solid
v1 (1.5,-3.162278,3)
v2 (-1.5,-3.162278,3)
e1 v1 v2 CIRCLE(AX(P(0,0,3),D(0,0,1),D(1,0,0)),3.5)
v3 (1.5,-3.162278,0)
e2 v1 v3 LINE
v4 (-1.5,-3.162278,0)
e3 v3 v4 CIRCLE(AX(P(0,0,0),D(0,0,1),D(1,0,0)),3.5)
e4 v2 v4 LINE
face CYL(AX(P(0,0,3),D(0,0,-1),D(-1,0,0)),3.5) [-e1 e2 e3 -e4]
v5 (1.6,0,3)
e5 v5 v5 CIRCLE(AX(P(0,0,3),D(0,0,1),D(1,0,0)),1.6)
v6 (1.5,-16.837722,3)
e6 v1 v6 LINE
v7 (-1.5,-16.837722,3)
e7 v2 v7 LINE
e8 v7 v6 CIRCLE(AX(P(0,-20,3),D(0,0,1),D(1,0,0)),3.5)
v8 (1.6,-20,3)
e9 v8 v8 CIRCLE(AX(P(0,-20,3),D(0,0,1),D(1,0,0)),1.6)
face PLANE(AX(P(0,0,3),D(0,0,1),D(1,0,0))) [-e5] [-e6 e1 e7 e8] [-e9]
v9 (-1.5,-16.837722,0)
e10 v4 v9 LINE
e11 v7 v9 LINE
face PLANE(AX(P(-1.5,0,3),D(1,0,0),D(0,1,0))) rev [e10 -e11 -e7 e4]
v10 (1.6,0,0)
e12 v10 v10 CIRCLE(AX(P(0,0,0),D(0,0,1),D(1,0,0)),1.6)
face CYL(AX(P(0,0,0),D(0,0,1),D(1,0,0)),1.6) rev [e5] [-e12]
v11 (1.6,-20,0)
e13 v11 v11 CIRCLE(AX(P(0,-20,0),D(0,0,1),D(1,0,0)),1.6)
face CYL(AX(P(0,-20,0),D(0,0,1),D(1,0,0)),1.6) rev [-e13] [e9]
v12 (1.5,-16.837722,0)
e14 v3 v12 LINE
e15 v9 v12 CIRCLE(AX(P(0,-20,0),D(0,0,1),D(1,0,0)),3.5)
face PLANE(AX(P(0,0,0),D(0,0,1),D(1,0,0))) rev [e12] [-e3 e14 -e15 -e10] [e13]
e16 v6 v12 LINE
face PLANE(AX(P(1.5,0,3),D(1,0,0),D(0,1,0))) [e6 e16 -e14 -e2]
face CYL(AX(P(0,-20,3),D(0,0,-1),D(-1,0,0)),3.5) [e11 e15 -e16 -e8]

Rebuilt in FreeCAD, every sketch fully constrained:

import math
import FreeCAD as App
import Part
import Sketcher

V = App.Vector

doc = App.newDocument("Part")
body = doc.addObject("PartDesign::Body", "Body")

# Sketch on XY plane
sketch1 = doc.addObject("Sketcher::SketchObject", "Sketch")
body.addObject(sketch1)
sketch1.AttachmentSupport = (doc.XY_Plane, [""])
sketch1.MapMode = "FlatFace"
sketch1.addGeometry([
    Part.LineSegment(V(-1.5, -3.162278, 0), V(-1.5, -16.837722, 0)),  # 0
    Part.ArcOfCircle(Part.Circle(V(0, -20, 0), V(0, 0, 1), 3.5), math.radians(115.376934), math.radians(360)),  # 1
    Part.ArcOfCircle(Part.Circle(V(0, -20, 0), V(0, 0, 1), 3.5), math.radians(0), math.radians(64.623066)),  # 2
    Part.LineSegment(V(1.5, -16.837722, 0), V(1.5, -3.162278, 0)),  # 3
    Part.ArcOfCircle(Part.Circle(V(0, 0, 0), V(0, 0, 1), 3.5), math.radians(-64.623066), math.radians(0)),  # 4
    Part.ArcOfCircle(Part.Circle(V(0, 0, 0), V(0, 0, 1), 3.5), math.radians(0), math.radians(244.623066)),  # 5
], False)
sketch1.addConstraint([
    Sketcher.Constraint("Coincident", 0, 2, 1, 1),
    Sketcher.Constraint("Tangent", 1, 2, 2, 1),
    Sketcher.Constraint("Coincident", 2, 2, 3, 1),
    Sketcher.Constraint("Coincident", 3, 2, 4, 1),
    Sketcher.Constraint("Tangent", 4, 2, 5, 1),
    Sketcher.Constraint("Coincident", 5, 2, 0, 1),
    Sketcher.Constraint("Vertical", 0),
    Sketcher.Constraint("Vertical", 3),
    Sketcher.Constraint("Coincident", 4, 3, -1, 1),
    Sketcher.Constraint("Equal", 1, 2),
    Sketcher.Constraint("Equal", 2, 4),
    Sketcher.Constraint("Equal", 4, 5),
    Sketcher.Constraint("Symmetric", 0, 2, 2, 2, -2),
    Sketcher.Constraint("PointOnObject", 4, 2, -1),
    Sketcher.Constraint("Horizontal", 2, 3, 1, 2),
    Sketcher.Constraint("Radius", 1, 3.5),
    Sketcher.Constraint("DistanceY", 1, 3, -1, 1, 20.0),
    Sketcher.Constraint("DistanceX", 0, 2, 1, 2, 5.0),
])
pad1 = doc.addObject("PartDesign::Pad", "Pad")
body.addObject(pad1)
pad1.Profile = sketch1
pad1.Length = 3

# Sketch on XY plane
sketch2 = doc.addObject("Sketcher::SketchObject", "Sketch001")
body.addObject(sketch2)
sketch2.AttachmentSupport = (doc.XY_Plane, [""])
sketch2.MapMode = "FlatFace"
sketch2.AttachmentOffset = App.Placement(V(0, 0, 3), App.Rotation())
sketch2.addGeometry([
    Part.Circle(V(0, -20, 0), V(0, 0, 1), 1.6),
    Part.Circle(V(0, 0, 0), V(0, 0, 1), 1.6),
], False)
sketch2.addConstraint([
    Sketcher.Constraint("Coincident", 1, 3, -1, 1),
    Sketcher.Constraint("Equal", 0, 1),
    Sketcher.Constraint("PointOnObject", 0, 3, -2),
    Sketcher.Constraint("Diameter", 0, 3.2),
    Sketcher.Constraint("DistanceY", 0, 3, -1, 1, 20.0),
])
pocket1 = doc.addObject("PartDesign::Pocket", "Pocket")
body.addObject(pocket1)
pocket1.Profile = sketch2
pocket1.Length = 3

doc.recompute()
